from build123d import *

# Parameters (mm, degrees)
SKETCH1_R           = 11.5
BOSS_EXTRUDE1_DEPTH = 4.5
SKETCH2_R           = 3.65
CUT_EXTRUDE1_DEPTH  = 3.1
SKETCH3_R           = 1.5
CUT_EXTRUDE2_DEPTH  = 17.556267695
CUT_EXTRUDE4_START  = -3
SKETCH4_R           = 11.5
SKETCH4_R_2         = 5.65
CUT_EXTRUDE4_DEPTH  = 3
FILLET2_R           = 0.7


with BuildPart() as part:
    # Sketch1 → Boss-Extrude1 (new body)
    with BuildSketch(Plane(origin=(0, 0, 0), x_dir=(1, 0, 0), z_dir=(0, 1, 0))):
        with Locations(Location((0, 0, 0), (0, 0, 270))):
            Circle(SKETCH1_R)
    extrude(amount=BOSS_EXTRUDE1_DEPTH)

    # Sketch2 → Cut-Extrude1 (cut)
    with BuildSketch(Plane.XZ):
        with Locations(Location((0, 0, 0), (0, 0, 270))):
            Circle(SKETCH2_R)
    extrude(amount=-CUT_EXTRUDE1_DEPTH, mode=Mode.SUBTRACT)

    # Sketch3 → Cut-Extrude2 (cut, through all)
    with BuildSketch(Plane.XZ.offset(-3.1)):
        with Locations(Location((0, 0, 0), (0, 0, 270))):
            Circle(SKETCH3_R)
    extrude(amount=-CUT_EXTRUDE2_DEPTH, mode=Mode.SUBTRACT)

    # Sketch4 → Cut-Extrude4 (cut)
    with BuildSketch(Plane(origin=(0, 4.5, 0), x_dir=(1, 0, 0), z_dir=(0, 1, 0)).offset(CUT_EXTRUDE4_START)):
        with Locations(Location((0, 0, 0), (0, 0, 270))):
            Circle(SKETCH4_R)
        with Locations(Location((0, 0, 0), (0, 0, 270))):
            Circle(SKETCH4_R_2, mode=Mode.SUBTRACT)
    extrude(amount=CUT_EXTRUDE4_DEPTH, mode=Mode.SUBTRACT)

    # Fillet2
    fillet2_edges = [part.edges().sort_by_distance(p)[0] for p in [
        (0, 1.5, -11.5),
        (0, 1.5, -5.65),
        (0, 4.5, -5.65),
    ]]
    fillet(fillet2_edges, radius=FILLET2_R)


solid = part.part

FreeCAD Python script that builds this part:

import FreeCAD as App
import Part
import Sketcher
Q = App.Units.Quantity


def edges_at(feature, points):
    """Names of the edges that pass closest to the given points."""
    edges = feature.Shape.Edges
    near = lambda p: min(range(len(edges)), key=lambda i: edges[i].distToShape(Part.Vertex(*p))[0])
    return sorted({f"Edge{near(p) + 1}" for p in points})

doc = App.newDocument("Part")
body = doc.addObject("PartDesign::Body", "Body")

# Sketch on XZ plane
sketch1 = doc.addObject("Sketcher::SketchObject", "Sketch")
body.addObject(sketch1)
sketch1.AttachmentSupport = (doc.XZ_Plane, [""])
sketch1.MapMode = "FlatFace"
sketch1.addGeometry(Part.Circle(App.Vector(0, 0, 0), App.Vector(0, 0, 1), 12), False)
sketch1.addConstraint([
    Sketcher.Constraint("Coincident", 0, 3, -1, 1),
    Sketcher.Constraint("Diameter", 0, Q("23 mm")),
])
pad1 = doc.addObject("PartDesign::Pad", "Pad")
body.addObject(pad1)
pad1.Profile = sketch1
pad1.Length = 4.5
pad1.Reversed = True

# Sketch on XZ plane
sketch2 = doc.addObject("Sketcher::SketchObject", "Sketch001")
body.addObject(sketch2)
sketch2.AttachmentSupport = (doc.XZ_Plane, [""])
sketch2.MapMode = "FlatFace"
sketch2.addGeometry(Part.Circle(App.Vector(0, 0, 0), App.Vector(0, 0, 1), 3.6), False)
sketch2.addConstraint([
    Sketcher.Constraint("Coincident", 0, 3, -1, 1),
    Sketcher.Constraint("Diameter", 0, Q("7.3 mm")),
])
pocket1 = doc.addObject("PartDesign::Pocket", "Pocket")
body.addObject(pocket1)
pocket1.Profile = sketch2
pocket1.Length = 3.1

# Sketch on XZ plane
sketch3 = doc.addObject("Sketcher::SketchObject", "Sketch002")
body.addObject(sketch3)
sketch3.AttachmentSupport = (doc.XZ_Plane, [""])
sketch3.MapMode = "FlatFace"
sketch3.AttachmentOffset = App.Placement(App.Vector(0, 0, -3.1), App.Rotation())
sketch3.addGeometry(Part.Circle(App.Vector(0, 0, 0), App.Vector(0, 0, 1), 1.5), False)
sketch3.addConstraint([
    Sketcher.Constraint("Coincident", 0, 3, -1, 1),
    Sketcher.Constraint("Diameter", 0, Q("3 mm")),
])
pocket2 = doc.addObject("PartDesign::Pocket", "Pocket001")
body.addObject(pocket2)
pocket2.Profile = sketch3
pocket2.Type = "ThroughAll"

# Sketch on XZ plane
sketch4 = doc.addObject("Sketcher::SketchObject", "Sketch003")
body.addObject(sketch4)
sketch4.AttachmentSupport = (doc.XZ_Plane, [""])
sketch4.MapMode = "FlatFace"
sketch4.AttachmentOffset = App.Placement(App.Vector(0, 0, -1.5), App.Rotation())
sketch4.addGeometry([
    Part.Circle(App.Vector(0, 0, 0), App.Vector(0, 0, 1), 12),
    Part.Circle(App.Vector(0, 0, 0), App.Vector(0, 0, 1), 6),
], False)
sketch4.addConstraint([
    Sketcher.Constraint("Coincident", 0, 3, -1, 1),
    Sketcher.Constraint("Coincident", 1, 3, -1, 1),
    Sketcher.Constraint("Diameter", 0, Q("23 mm")),
    Sketcher.Constraint("Diameter", 1, Q("11.3 mm")),
])
pocket3 = doc.addObject("PartDesign::Pocket", "Pocket002")
body.addObject(pocket3)
pocket3.Profile = sketch4
pocket3.Length = 3
doc.recompute()

fillet = doc.addObject("PartDesign::Fillet", "Fillet")
body.addObject(fillet)
fillet.Base = (pocket3, edges_at(pocket3, [(0, 1.5, -11.5), (0, 1.5, -5.65), (0, 4.5, -5.65)]))
fillet.Radius = 0.7

doc.recompute()
